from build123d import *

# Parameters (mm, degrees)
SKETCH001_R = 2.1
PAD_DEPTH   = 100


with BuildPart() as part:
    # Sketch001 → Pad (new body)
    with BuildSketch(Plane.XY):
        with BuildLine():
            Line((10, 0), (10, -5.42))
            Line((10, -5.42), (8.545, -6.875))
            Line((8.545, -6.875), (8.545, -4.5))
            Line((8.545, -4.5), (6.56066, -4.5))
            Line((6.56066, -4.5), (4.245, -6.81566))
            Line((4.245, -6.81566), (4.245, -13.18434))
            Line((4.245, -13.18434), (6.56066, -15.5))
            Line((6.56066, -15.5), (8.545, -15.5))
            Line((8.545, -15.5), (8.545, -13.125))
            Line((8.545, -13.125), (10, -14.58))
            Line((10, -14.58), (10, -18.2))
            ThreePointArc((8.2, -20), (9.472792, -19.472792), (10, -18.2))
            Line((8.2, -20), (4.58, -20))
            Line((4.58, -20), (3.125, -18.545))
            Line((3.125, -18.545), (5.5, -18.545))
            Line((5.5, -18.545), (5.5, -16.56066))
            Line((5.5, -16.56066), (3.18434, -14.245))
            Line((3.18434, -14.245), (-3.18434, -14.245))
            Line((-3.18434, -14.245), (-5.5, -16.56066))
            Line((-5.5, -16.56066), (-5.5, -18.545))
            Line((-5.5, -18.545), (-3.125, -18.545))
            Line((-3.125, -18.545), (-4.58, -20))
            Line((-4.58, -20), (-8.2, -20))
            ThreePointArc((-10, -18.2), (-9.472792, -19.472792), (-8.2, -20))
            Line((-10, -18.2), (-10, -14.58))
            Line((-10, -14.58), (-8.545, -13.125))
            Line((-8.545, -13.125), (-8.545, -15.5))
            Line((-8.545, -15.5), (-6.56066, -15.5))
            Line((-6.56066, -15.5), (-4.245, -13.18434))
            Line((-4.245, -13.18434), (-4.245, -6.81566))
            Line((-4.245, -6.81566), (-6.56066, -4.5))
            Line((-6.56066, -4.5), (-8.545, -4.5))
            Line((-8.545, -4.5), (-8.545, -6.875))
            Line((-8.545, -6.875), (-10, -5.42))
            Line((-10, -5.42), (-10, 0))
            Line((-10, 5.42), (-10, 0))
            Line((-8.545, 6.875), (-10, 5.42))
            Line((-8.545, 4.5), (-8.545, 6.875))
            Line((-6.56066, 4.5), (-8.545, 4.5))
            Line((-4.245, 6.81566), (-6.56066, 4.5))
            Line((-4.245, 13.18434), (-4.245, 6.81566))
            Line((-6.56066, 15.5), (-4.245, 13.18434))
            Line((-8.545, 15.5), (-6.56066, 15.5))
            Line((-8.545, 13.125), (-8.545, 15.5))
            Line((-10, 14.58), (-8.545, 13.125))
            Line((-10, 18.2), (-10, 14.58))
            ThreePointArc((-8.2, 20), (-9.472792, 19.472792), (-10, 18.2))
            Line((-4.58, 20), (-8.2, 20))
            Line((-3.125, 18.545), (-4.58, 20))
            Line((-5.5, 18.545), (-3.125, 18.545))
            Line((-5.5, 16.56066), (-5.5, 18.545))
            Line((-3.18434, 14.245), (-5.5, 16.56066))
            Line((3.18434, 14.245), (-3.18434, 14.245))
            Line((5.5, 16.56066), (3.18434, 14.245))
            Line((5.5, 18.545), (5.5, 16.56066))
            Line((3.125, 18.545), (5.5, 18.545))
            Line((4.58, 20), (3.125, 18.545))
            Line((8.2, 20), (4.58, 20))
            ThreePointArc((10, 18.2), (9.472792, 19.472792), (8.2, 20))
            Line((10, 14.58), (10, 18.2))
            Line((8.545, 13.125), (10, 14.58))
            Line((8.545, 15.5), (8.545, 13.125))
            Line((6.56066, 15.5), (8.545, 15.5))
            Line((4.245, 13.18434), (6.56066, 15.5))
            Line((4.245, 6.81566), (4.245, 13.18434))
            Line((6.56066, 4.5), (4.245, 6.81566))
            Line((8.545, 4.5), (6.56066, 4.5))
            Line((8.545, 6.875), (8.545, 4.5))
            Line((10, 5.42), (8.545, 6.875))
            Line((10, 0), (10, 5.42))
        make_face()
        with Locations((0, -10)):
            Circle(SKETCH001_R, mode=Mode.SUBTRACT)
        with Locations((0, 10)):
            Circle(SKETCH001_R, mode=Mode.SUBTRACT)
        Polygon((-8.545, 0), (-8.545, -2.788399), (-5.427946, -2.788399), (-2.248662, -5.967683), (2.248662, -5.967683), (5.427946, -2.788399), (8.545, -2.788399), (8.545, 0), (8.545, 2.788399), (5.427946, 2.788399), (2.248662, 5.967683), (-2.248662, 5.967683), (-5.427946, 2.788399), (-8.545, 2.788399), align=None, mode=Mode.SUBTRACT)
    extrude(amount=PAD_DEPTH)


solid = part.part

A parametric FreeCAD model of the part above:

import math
import FreeCAD as App
import Part
import Sketcher

V = App.Vector
Q = App.Units.Quantity


def add_polygon(sketch, points):
    """Adds a closed chain of lines whose ends are joined by coincident constraints."""
    first, n = sketch.GeometryCount, len(points)
    for a, b in zip(points, points[1:] + points[:1]):
        sketch.addGeometry(Part.LineSegment(App.Vector(*a, 0), App.Vector(*b, 0)), False)
    for i in range(n):
        sketch.addConstraint(Sketcher.Constraint("Coincident", first + i, 2, first + (i + 1) % n, 1))

doc = App.newDocument("Part")
body = doc.addObject("PartDesign::Body", "Body")

sketch1 = doc.addObject("Sketcher::SketchObject", "Sketch")
body.addObject(sketch1)
sketch1.AttachmentSupport = (doc.XY_Plane, [""])
sketch1.MapMode = "FlatFace"
sketch1.addGeometry(Part.LineSegment(V(10, -5.4, 0), V(10, 5.4, 0)), False)
sketch1.addGeometry(Part.LineSegment(V(10, 5.4, 0), V(8.5, 6.9, 0)), False)
sketch1.addGeometry(Part.LineSegment(V(8.5, 6.9, 0), V(8.5, 4.5, 0)), False)
sketch1.addGeometry(Part.LineSegment(V(8.5, 4.5, 0), V(6.6, 4.5, 0)), False)
sketch1.addGeometry(Part.LineSegment(V(6.6, 4.5, 0), V(4.2, 6.8, 0)), False)
sketch1.addGeometry(Part.LineSegment(V(4.2, 6.8, 0), V(4.2, 13.2, 0)), False)
sketch1.addGeometry(Part.LineSegment(V(4.2, 13.2, 0), V(6.6, 15.5, 0)), False)
sketch1.addGeometry(Part.LineSegment(V(6.6, 15.5, 0), V(8.5, 15.5, 0)), False)
sketch1.addGeometry(Part.LineSegment(V(8.5, 15.5, 0), V(8.5, 13.1, 0)), False)
sketch1.addGeometry(Part.LineSegment(V(8.5, 13.1, 0), V(10, 14.6, 0)), False)
sketch1.addGeometry(Part.LineSegment(V(10, 14.6, 0), V(10, 18.2, 0)), False)
sketch1.addGeometry(Part.ArcOfCircle(Part.Circle(V(8.2, 18.2, 0), V(0, 0, 1), 1.8), math.radians(0), math.radians(90)), False)
sketch1.addGeometry(Part.LineSegment(V(8.2, 20, 0), V(4.6, 20, 0)), False)
sketch1.addGeometry(Part.LineSegment(V(4.6, 20, 0), V(3.1, 18.5, 0)), False)
sketch1.addGeometry(Part.LineSegment(V(3.1, 18.5, 0), V(5.5, 18.5, 0)), False)
sketch1.addGeometry(Part.LineSegment(V(5.5, 18.5, 0), V(5.5, 16.6, 0)), False)
sketch1.addGeometry(Part.LineSegment(V(5.5, 16.6, 0), V(3.2, 14.2, 0)), False)
sketch1.addGeometry(Part.LineSegment(V(3.2, 14.2, 0), V(-3.2, 14.2, 0)), False)
sketch1.addGeometry(Part.LineSegment(V(-3.2, 14.2, 0), V(-5.5, 16.6, 0)), False)
sketch1.addGeometry(Part.LineSegment(V(-5.5, 16.6, 0), V(-5.5, 18.5, 0)), False)
sketch1.addGeometry(Part.LineSegment(V(-5.5, 18.5, 0), V(-3.1, 18.5, 0)), False)
sketch1.addGeometry(Part.LineSegment(V(-3.1, 18.5, 0), V(-4.6, 20, 0)), False)
sketch1.addGeometry(Part.LineSegment(V(-4.6, 20, 0), V(-8.2, 20, 0)), False)
sketch1.addGeometry(Part.ArcOfCircle(Part.Circle(V(-8.2, 18.2, 0), V(0, 0, 1), 1.8), math.radians(90), math.radians(180)), False)
sketch1.addGeometry(Part.LineSegment(V(-10, 18.2, 0), V(-10, 14.6, 0)), False)
sketch1.addGeometry(Part.LineSegment(V(-10, 14.6, 0), V(-8.5, 13.1, 0)), False)
sketch1.addGeometry(Part.LineSegment(V(-8.5, 13.1, 0), V(-8.5, 15.5, 0)), False)
sketch1.addGeometry(Part.LineSegment(V(-8.5, 15.5, 0), V(-6.6, 15.5, 0)), False)
sketch1.addGeometry(Part.LineSegment(V(-6.6, 15.5, 0), V(-4.2, 13.2, 0)), False)
sketch1.addGeometry(Part.LineSegment(V(-4.2, 13.2, 0), V(-4.2, 6.8, 0)), False)
sketch1.addGeometry(Part.LineSegment(V(-4.2, 6.8, 0), V(-6.6, 4.5, 0)), False)
sketch1.addGeometry(Part.LineSegment(V(-6.6, 4.5, 0), V(-8.5, 4.5, 0)), False)
sketch1.addGeometry(Part.LineSegment(V(-8.5, 4.5, 0), V(-8.5, 6.9, 0)), False)
sketch1.addGeometry(Part.LineSegment(V(-8.5, 6.9, 0), V(-10, 5.4, 0)), False)
sketch1.addGeometry(Part.LineSegment(V(-10, 5.4, 0), V(-10, -5.4, 0)), False)
sketch1.addGeometry(Part.LineSegment(V(-10, -5.4, 0), V(-8.5, -6.9, 0)), False)
sketch1.addGeometry(Part.LineSegment(V(-8.5, -6.9, 0), V(-8.5, -4.5, 0)), False)
sketch1.addGeometry(Part.LineSegment(V(-8.5, -4.5, 0), V(-6.6, -4.5, 0)), False)
sketch1.addGeometry(Part.LineSegment(V(-6.6, -4.5, 0), V(-4.2, -6.8, 0)), False)
sketch1.addGeometry(Part.LineSegment(V(-4.2, -6.8, 0), V(-4.2, -13.2, 0)), False)
sketch1.addGeometry(Part.LineSegment(V(-4.2, -13.2, 0), V(-6.6, -15.5, 0)), False)
sketch1.addGeometry(Part.LineSegment(V(-6.6, -15.5, 0), V(-8.5, -15.5, 0)), False)
sketch1.addGeometry(Part.LineSegment(V(-8.5, -15.5, 0), V(-8.5, -13.1, 0)), False)
sketch1.addGeometry(Part.LineSegment(V(-8.5, -13.1, 0), V(-10, -14.6, 0)), False)
sketch1.addGeometry(Part.LineSegment(V(-10, -14.6, 0), V(-10, -18.2, 0)), False)
sketch1.addGeometry(Part.ArcOfCircle(Part.Circle(V(-8.2, -18.2, 0), V(0, 0, 1), 1.8), math.radians(-180), math.radians(-90)), False)
sketch1.addGeometry(Part.LineSegment(V(-8.2, -20, 0), V(-4.6, -20, 0)), False)
sketch1.addGeometry(Part.LineSegment(V(-4.6, -20, 0), V(-3.1, -18.5, 0)), False)
sketch1.addGeometry(Part.LineSegment(V(-3.1, -18.5, 0), V(-5.5, -18.5, 0)), False)
sketch1.addGeometry(Part.LineSegment(V(-5.5, -18.5, 0), V(-5.5, -16.6, 0)), False)
sketch1.addGeometry(Part.LineSegment(V(-5.5, -16.6, 0), V(-3.2, -14.2, 0)), False)
sketch1.addGeometry(Part.LineSegment(V(-3.2, -14.2, 0), V(3.2, -14.2, 0)), False)
sketch1.addGeometry(Part.LineSegment(V(3.2, -14.2, 0), V(5.5, -16.6, 0)), False)
sketch1.addGeometry(Part.LineSegment(V(5.5, -16.6, 0), V(5.5, -18.5, 0)), False)
sketch1.addGeometry(Part.LineSegment(V(5.5, -18.5, 0), V(3.1, -18.5, 0)), False)
sketch1.addGeometry(Part.LineSegment(V(3.1, -18.5, 0), V(4.6, -20, 0)), False)
sketch1.addGeometry(Part.LineSegment(V(4.6, -20, 0), V(8.2, -20, 0)), False)
sketch1.addGeometry(Part.ArcOfCircle(Part.Circle(V(8.2, -18.2, 0), V(0, 0, 1), 1.8), math.radians(-90), math.radians(0)), False)
sketch1.addGeometry(Part.LineSegment(V(10, -18.2, 0), V(10, -14.6, 0)), False)
sketch1.addGeometry(Part.LineSegment(V(10, -14.6, 0), V(8.5, -13.1, 0)), False)
sketch1.addGeometry(Part.LineSegment(V(8.5, -13.1, 0), V(8.5, -15.5, 0)), False)
sketch1.addGeometry(Part.LineSegment(V(8.5, -15.5, 0), V(6.6, -15.5, 0)), False)
sketch1.addGeometry(Part.LineSegment(V(6.6, -15.5, 0), V(4.2, -13.2, 0)), False)
sketch1.addGeometry(Part.LineSegment(V(4.2, -13.2, 0), V(4.2, -6.8, 0)), False)
sketch1.addGeometry(Part.LineSegment(V(4.2, -6.8, 0), V(6.6, -4.5, 0)), False)
sketch1.addGeometry(Part.LineSegment(V(6.6, -4.5, 0), V(8.5, -4.5, 0)), False)
sketch1.addGeometry(Part.LineSegment(V(8.5, -4.5, 0), V(8.5, -6.9, 0)), False)
sketch1.addGeometry(Part.LineSegment(V(8.5, -6.9, 0), V(10, -5.4, 0)), False)
sketch1.addGeometry(Part.Circle(V(0, -10, 0), V(0, 0, 1), 2.1), False)
add_polygon(sketch1, [(-8.5, 2.8), (-5.4, 2.8), (-2.2, 6), (2.2, 6), (5.4, 2.8), (8.5, 2.8), (8.5, -2.8), (5.4, -2.8), (2.2, -6), (-2.2, -6), (-5.4, -2.8), (-8.5, -2.8)])
sketch1.addGeometry(Part.Circle(V(0, 10, 0), V(0, 0, 1), 2.1), False)
sketch1.addConstraint(Sketcher.Constraint("Coincident", 0, 2, 1, 1))
sketch1.addConstraint(Sketcher.Constraint("Coincident", 1, 2, 2, 1))
sketch1.addConstraint(Sketcher.Constraint("Coincident", 2, 2, 3, 1))
sketch1.addConstraint(Sketcher.Constraint("Coincident", 3, 2, 4, 1))
sketch1.addConstraint(Sketcher.Constraint("Coincident", 4, 2, 5, 1))
sketch1.addConstraint(Sketcher.Constraint("Coincident", 5, 2, 6, 1))
sketch1.addConstraint(Sketcher.Constraint("Coincident", 6, 2, 7, 1))
sketch1.addConstraint(Sketcher.Constraint("Coincident", 7, 2, 8, 1))
sketch1.addConstraint(Sketcher.Constraint("Coincident", 8, 2, 9, 1))
sketch1.addConstraint(Sketcher.Constraint("Coincident", 9, 2, 10, 1))
sketch1.addConstraint(Sketcher.Constraint("Tangent", 10, 2, 11, 1))
sketch1.addConstraint(Sketcher.Constraint("Tangent", 11, 2, 12, 1))
sketch1.addConstraint(Sketcher.Constraint("Coincident", 12, 2, 13, 1))
sketch1.addConstraint(Sketcher.Constraint("Coincident", 13, 2, 14, 1))
sketch1.addConstraint(Sketcher.Constraint("Coincident", 14, 2, 15, 1))
sketch1.addConstraint(Sketcher.Constraint("Coincident", 15, 2, 16, 1))
sketch1.addConstraint(Sketcher.Constraint("Coincident", 16, 2, 17, 1))
sketch1.addConstraint(Sketcher.Constraint("Coincident", 17, 2, 18, 1))
sketch1.addConstraint(Sketcher.Constraint("Coincident", 18, 2, 19, 1))
sketch1.addConstraint(Sketcher.Constraint("Coincident", 19, 2, 20, 1))
sketch1.addConstraint(Sketcher.Constraint("Coincident", 20, 2, 21, 1))
sketch1.addConstraint(Sketcher.Constraint("Coincident", 21, 2, 22, 1))
sketch1.addConstraint(Sketcher.Constraint("Tangent", 22, 2, 23, 1))
sketch1.addConstraint(Sketcher.Constraint("Tangent", 23, 2, 24, 1))
sketch1.addConstraint(Sketcher.Constraint("Coincident", 24, 2, 25, 1))
sketch1.addConstraint(Sketcher.Constraint("Coincident", 25, 2, 26, 1))
sketch1.addConstraint(Sketcher.Constraint("Coincident", 26, 2, 27, 1))
sketch1.addConstraint(Sketcher.Constraint("Coincident", 27, 2, 28, 1))
sketch1.addConstraint(Sketcher.Constraint("Coincident", 28, 2, 29, 1))
sketch1.addConstraint(Sketcher.Constraint("Coincident", 29, 2, 30, 1))
sketch1.addConstraint(Sketcher.Constraint("Coincident", 30, 2, 31, 1))
sketch1.addConstraint(Sketcher.Constraint("Coincident", 31, 2, 32, 1))
sketch1.addConstraint(Sketcher.Constraint("Coincident", 32, 2, 33, 1))
sketch1.addConstraint(Sketcher.Constraint("Coincident", 33, 2, 34, 1))
sketch1.addConstraint(Sketcher.Constraint("Coincident", 34, 2, 35, 1))
sketch1.addConstraint(Sketcher.Constraint("Coincident", 35, 2, 36, 1))
sketch1.addConstraint(Sketcher.Constraint("Coincident", 36, 2, 37, 1))
sketch1.addConstraint(Sketcher.Constraint("Coincident", 37, 2, 38, 1))
sketch1.addConstraint(Sketcher.Constraint("Coincident", 38, 2, 39, 1))
sketch1.addConstraint(Sketcher.Constraint("Coincident", 39, 2, 40, 1))
sketch1.addConstraint(Sketcher.Constraint("Coincident", 40, 2, 41, 1))
sketch1.addConstraint(Sketcher.Constraint("Coincident", 41, 2, 42, 1))
sketch1.addConstraint(Sketcher.Constraint("Coincident", 42, 2, 43, 1))
sketch1.addConstraint(Sketcher.Constraint("Coincident", 43, 2, 44, 1))
sketch1.addConstraint(Sketcher.Constraint("Tangent", 44, 2, 45, 1))
sketch1.addConstraint(Sketcher.Constraint("Tangent", 45, 2, 46, 1))
sketch1.addConstraint(Sketcher.Constraint("Coincident", 46, 2, 47, 1))
sketch1.addConstraint(Sketcher.Constraint("Coincident", 47, 2, 48, 1))
sketch1.addConstraint(Sketcher.Constraint("Coincident", 48, 2, 49, 1))
sketch1.addConstraint(Sketcher.Constraint("Coincident", 49, 2, 50, 1))
sketch1.addConstraint(Sketcher.Constraint("Coincident", 50, 2, 51, 1))
sketch1.addConstraint(Sketcher.Constraint("Coincident", 51, 2, 52, 1))
sketch1.addConstraint(Sketcher.Constraint("Coincident", 52, 2, 53, 1))
sketch1.addConstraint(Sketcher.Constraint("Coincident", 53, 2, 54, 1))
sketch1.addConstraint(Sketcher.Constraint("Coincident", 54, 2, 55, 1))
sketch1.addConstraint(Sketcher.Constraint("Coincident", 55, 2, 56, 1))
sketch1.addConstraint(Sketcher.Constraint("Tangent", 56, 2, 57, 1))
sketch1.addConstraint(Sketcher.Constraint("Tangent", 57, 2, 58, 1))
sketch1.addConstraint(Sketcher.Constraint("Coincident", 58, 2, 59, 1))
sketch1.addConstraint(Sketcher.Constraint("Coincident", 59, 2, 60, 1))
sketch1.addConstraint(Sketcher.Constraint("Coincident", 60, 2, 61, 1))
sketch1.addConstraint(Sketcher.Constraint("Coincident", 61, 2, 62, 1))
sketch1.addConstraint(Sketcher.Constraint("Coincident", 62, 2, 63, 1))
sketch1.addConstraint(Sketcher.Constraint("Coincident", 63, 2, 64, 1))
sketch1.addConstraint(Sketcher.Constraint("Coincident", 64, 2, 65, 1))
sketch1.addConstraint(Sketcher.Constraint("Coincident", 65, 2, 66, 1))
sketch1.addConstraint(Sketcher.Constraint("Coincident", 66, 2, 67, 1))
sketch1.addConstraint(Sketcher.Constraint("Coincident", 67, 2, 0, 1))
sketch1.addConstraint(Sketcher.Constraint("Vertical", 0))
sketch1.addConstraint(Sketcher.Constraint("Vertical", 2))
sketch1.addConstraint(Sketcher.Constraint("Horizontal", 3))
sketch1.addConstraint(Sketcher.Constraint("Vertical", 5))
sketch1.addConstraint(Sketcher.Constraint("Horizontal", 7))
sketch1.addConstraint(Sketcher.Constraint("Vertical", 8))
sketch1.addConstraint(Sketcher.Constraint("Vertical", 10))
sketch1.addConstraint(Sketcher.Constraint("Horizontal", 12))
sketch1.addConstraint(Sketcher.Constraint("Horizontal", 14))
sketch1.addConstraint(Sketcher.Constraint("Vertical", 15))
sketch1.addConstraint(Sketcher.Constraint("Horizontal", 17))
sketch1.addConstraint(Sketcher.Constraint("Vertical", 19))
sketch1.addConstraint(Sketcher.Constraint("Horizontal", 20))
sketch1.addConstraint(Sketcher.Constraint("Horizontal", 22))
sketch1.addConstraint(Sketcher.Constraint("Vertical", 24))
sketch1.addConstraint(Sketcher.Constraint("Vertical", 26))
sketch1.addConstraint(Sketcher.Constraint("Horizontal", 27))
sketch1.addConstraint(Sketcher.Constraint("Vertical", 29))
sketch1.addConstraint(Sketcher.Constraint("Horizontal", 31))
sketch1.addConstraint(Sketcher.Constraint("Vertical", 32))
sketch1.addConstraint(Sketcher.Constraint("Vertical", 34))
sketch1.addConstraint(Sketcher.Constraint("Vertical", 36))
sketch1.addConstraint(Sketcher.Constraint("Horizontal", 37))
sketch1.addConstraint(Sketcher.Constraint("Vertical", 39))
sketch1.addConstraint(Sketcher.Constraint("Horizontal", 41))
sketch1.addConstraint(Sketcher.Constraint("Vertical", 42))
sketch1.addConstraint(Sketcher.Constraint("Vertical", 44))
sketch1.addConstraint(Sketcher.Constraint("Horizontal", 46))
sketch1.addConstraint(Sketcher.Constraint("Horizontal", 48))
sketch1.addConstraint(Sketcher.Constraint("Vertical", 49))
sketch1.addConstraint(Sketcher.Constraint("Horizontal", 51))
sketch1.addConstraint(Sketcher.Constraint("Vertical", 53))
sketch1.addConstraint(Sketcher.Constraint("Horizontal", 54))
sketch1.addConstraint(Sketcher.Constraint("Horizontal", 56))
sketch1.addConstraint(Sketcher.Constraint("Vertical", 58))
sketch1.addConstraint(Sketcher.Constraint("Vertical", 60))
sketch1.addConstraint(Sketcher.Constraint("Horizontal", 61))
sketch1.addConstraint(Sketcher.Constraint("Vertical", 63))
sketch1.addConstraint(Sketcher.Constraint("Horizontal", 65))
sketch1.addConstraint(Sketcher.Constraint("Vertical", 66))
sketch1.addConstraint(Sketcher.Constraint("Horizontal", 69))
sketch1.addConstraint(Sketcher.Constraint("Horizontal", 71))
sketch1.addConstraint(Sketcher.Constraint("Horizontal", 73))
sketch1.addConstraint(Sketcher.Constraint("Vertical", 74))
sketch1.addConstraint(Sketcher.Constraint("Horizontal", 75))
sketch1.addConstraint(Sketcher.Constraint("Horizontal", 77))
sketch1.addConstraint(Sketcher.Constraint("Horizontal", 79))
sketch1.addConstraint(Sketcher.Constraint("Vertical", 80))
sketch1.addConstraint(Sketcher.Constraint("Equal", 11, 23))
sketch1.addConstraint(Sketcher.Constraint("Equal", 23, 45))
sketch1.addConstraint(Sketcher.Constraint("Equal", 45, 57))
sketch1.addConstraint(Sketcher.Constraint("Equal", 68, 81))
sketch1.addConstraint(Sketcher.Constraint("Symmetric", 11, 3, 45, 3, -1, 1))
sketch1.addConstraint(Sketcher.Constraint("Symmetric", 23, 3, 57, 3, -1, 1))
sketch1.addConstraint(Sketcher.Constraint("Symmetric", 68, 3, 81, 3, -1, 1))
sketch1.addConstraint(Sketcher.Constraint("Symmetric", 0, 2, 34, 2, -1, 1))
sketch1.addConstraint(Sketcher.Constraint("Symmetric", 1, 2, 35, 2, -1, 1))
sketch1.addConstraint(Sketcher.Constraint("Symmetric", 3, 2, 37, 2, -1, 1))
sketch1.addConstraint(Sketcher.Constraint("Symmetric", 4, 2, 38, 2, -1, 1))
sketch1.addConstraint(Sketcher.Constraint("Symmetric", 6, 2, 40, 2, -1, 1))
sketch1.addConstraint(Sketcher.Constraint("Symmetric", 8, 2, 42, 2, -1, 1))
sketch1.addConstraint(Sketcher.Constraint("Symmetric", 13, 2, 47, 2, -1, 1))
sketch1.addConstraint(Sketcher.Constraint("Symmetric", 15, 2, 49, 2, -1, 1))
sketch1.addConstraint(Sketcher.Constraint("Symmetric", 16, 2, 50, 2, -1, 1))
sketch1.addConstraint(Sketcher.Constraint("Symmetric", 18, 2, 52, 2, -1, 1))
sketch1.addConstraint(Sketcher.Constraint("Symmetric", 20, 2, 54, 2, -1, 1))
sketch1.addConstraint(Sketcher.Constraint("Symmetric", 25, 2, 59, 2, -1, 1))
sketch1.addConstraint(Sketcher.Constraint("Symmetric", 27, 2, 61, 2, -1, 1))
sketch1.addConstraint(Sketcher.Constraint("Symmetric", 28, 2, 62, 2, -1, 1))
sketch1.addConstraint(Sketcher.Constraint("Symmetric", 30, 2, 64, 2, -1, 1))
sketch1.addConstraint(Sketcher.Constraint("Symmetric", 32, 2, 66, 2, -1, 1))
sketch1.addConstraint(Sketcher.Constraint("Symmetric", 69, 2, 75, 2, -1, 1))
sketch1.addConstraint(Sketcher.Constraint("Symmetric", 70, 2, 76, 2, -1, 1))
sketch1.addConstraint(Sketcher.Constraint("Symmetric", 72, 2, 78, 2, -1, 1))
sketch1.addConstraint(Sketcher.Constraint("Symmetric", 11, 3, 23, 3, -2))
sketch1.addConstraint(Sketcher.Constraint("Symmetric", 15, 2, 18, 2, -2))
sketch1.addConstraint(Sketcher.Constraint("Symmetric", 13, 2, 20, 2, -2))
sketch1.addConstraint(Sketcher.Constraint("Symmetric", 8, 2, 25, 2, -2))
sketch1.addConstraint(Sketcher.Constraint("Symmetric", 6, 2, 27, 2, -2))
sketch1.addConstraint(Sketcher.Constraint("Symmetric", 5, 2, 28, 2, -2))
sketch1.addConstraint(Sketcher.Constraint("Symmetric", 3, 2, 30, 2, -2))
sketch1.addConstraint(Sketcher.Constraint("Symmetric", 1, 2, 32, 2, -2))
sketch1.addConstraint(Sketcher.Constraint("Symmetric", 69, 2, 72, 2, -2))
sketch1.addConstraint(Sketcher.Constraint("PointOnObject", 68, 3, -2))
sketch1.addConstraint(Sketcher.Constraint("Parallel", 1, 4))
sketch1.addConstraint(Sketcher.Constraint("Perpendicular", 4, 6))
sketch1.addConstraint(Sketcher.Constraint("Parallel", 6, 9))
sketch1.addConstraint(Sketcher.Constraint("Parallel", 9, 13))
sketch1.addConstraint(Sketcher.Constraint("Parallel", 13, 16))
sketch1.addConstraint(Sketcher.Constraint("Perpendicular", 16, 18))
sketch1.addConstraint(Sketcher.Constraint("Parallel", 18, 21))
sketch1.addConstraint(Sketcher.Constraint("Parallel", 21, 25))
sketch1.addConstraint(Sketcher.Constraint("Parallel", 25, 28))
sketch1.addConstraint(Sketcher.Constraint("Perpendicular", 28, 30))
sketch1.addConstraint(Sketcher.Constraint("Parallel", 30, 33))
sketch1.addConstraint(Sketcher.Constraint("Perpendicular", 38, 40))
sketch1.addConstraint(Sketcher.Constraint("Parallel", 40, 43))
sketch1.addConstraint(Sketcher.Constraint("Parallel", 43, 47))
sketch1.addConstraint(Sketcher.Constraint("Perpendicular", 50, 52))
sketch1.addConstraint(Sketcher.Constraint("Parallel", 52, 55))
sketch1.addConstraint(Sketcher.Constraint("Parallel", 55, 59))
sketch1.addConstraint(Sketcher.Constraint("Perpendicular", 62, 64))
sketch1.addConstraint(Sketcher.Constraint("Parallel", 64, 67))
sketch1.addConstraint(Sketcher.Constraint("Parallel", 67, 70))
sketch1.addConstraint(Sketcher.Constraint("Perpendicular", 70, 72))
sketch1.addConstraint(Sketcher.Constraint("Perpendicular", 76, 78))
sketch1.addConstraint(Sketcher.Constraint("Vertical", 3, 2, 6, 2))
sketch1.addConstraint(Sketcher.Constraint("Vertical", 2, 2, 7, 2))
sketch1.addConstraint(Sketcher.Constraint("Vertical", 0, 2, 9, 2))
sketch1.addConstraint(Sketcher.Constraint("Vertical", 66, 2, 73, 2))
sketch1.addConstraint(Sketcher.Constraint("Vertical", 42, 2, 79, 2))
sketch1.addConstraint(Sketcher.Constraint("Equal", 54, 2))
sketch1.addConstraint(Sketcher.Constraint("Equal", 51, 5))
sketch1.addConstraint(Sketcher.Constraint("Equal", 2, 8))
sketch1.addConstraint(Sketcher.Constraint("Equal", 56, 10))
sketch1.addConstraint(Sketcher.Constraint("Equal", 65, 15))
sketch1.addConstraint(Sketcher.Constraint("Equal", 9, 13))
sketch1.addConstraint(Sketcher.Constraint("Equal", 6, 16))
sketch1.addConstraint(Sketcher.Constraint("Diameter", 68, Q("4.2 mm")))
sketch1.addConstraint(Sketcher.Constraint("Radius", 11, Q("1.800001 mm")))
sketch1.addConstraint(Sketcher.Constraint("DistanceY", 68, 3, -1, 1, Q("10 mm")))
sketch1.addConstraint(Sketcher.Constraint("DistanceX", -1, 1, 0, 2, Q("10 mm")))
sketch1.addConstraint(Sketcher.Constraint("DistanceY", -1, 1, 11, 2, Q("20 mm")))
sketch1.addConstraint(Sketcher.Constraint("DistanceX", 12, 2, 12, 1, Q("3.62 mm")))
sketch1.addConstraint(Sketcher.Constraint("DistanceY", -1, 1, 2, 2, Q("4.5 mm")))
sketch1.addConstraint(Sketcher.Constraint("DistanceX", 14, 1, 14, 2, Q("2.375 mm")))
sketch1.addConstraint(Sketcher.Constraint("DistanceX", -1, 1, 4, 2, Q("4.245 mm")))
sketch1.addConstraint(Sketcher.Constraint("DistanceX", 3, 2, 3, 1, Q("1.98434 mm")))
sketch1.addConstraint(Sketcher.Constraint("DistanceY", -1, 1, 69, 2, Q("2.788399 mm")))
sketch1.addConstraint(Sketcher.Constraint("DistanceX", 69, 1, 69, 2, Q("3.117054 mm")))
sketch1.addConstraint(Sketcher.Constraint("DistanceX", 71, 1, 71, 2, Q("4.497324 mm")))
pad1 = doc.addObject("PartDesign::Pad", "Pad")
body.addObject(pad1)
pad1.Profile = sketch1
pad1.Length = 100

doc.recompute()
